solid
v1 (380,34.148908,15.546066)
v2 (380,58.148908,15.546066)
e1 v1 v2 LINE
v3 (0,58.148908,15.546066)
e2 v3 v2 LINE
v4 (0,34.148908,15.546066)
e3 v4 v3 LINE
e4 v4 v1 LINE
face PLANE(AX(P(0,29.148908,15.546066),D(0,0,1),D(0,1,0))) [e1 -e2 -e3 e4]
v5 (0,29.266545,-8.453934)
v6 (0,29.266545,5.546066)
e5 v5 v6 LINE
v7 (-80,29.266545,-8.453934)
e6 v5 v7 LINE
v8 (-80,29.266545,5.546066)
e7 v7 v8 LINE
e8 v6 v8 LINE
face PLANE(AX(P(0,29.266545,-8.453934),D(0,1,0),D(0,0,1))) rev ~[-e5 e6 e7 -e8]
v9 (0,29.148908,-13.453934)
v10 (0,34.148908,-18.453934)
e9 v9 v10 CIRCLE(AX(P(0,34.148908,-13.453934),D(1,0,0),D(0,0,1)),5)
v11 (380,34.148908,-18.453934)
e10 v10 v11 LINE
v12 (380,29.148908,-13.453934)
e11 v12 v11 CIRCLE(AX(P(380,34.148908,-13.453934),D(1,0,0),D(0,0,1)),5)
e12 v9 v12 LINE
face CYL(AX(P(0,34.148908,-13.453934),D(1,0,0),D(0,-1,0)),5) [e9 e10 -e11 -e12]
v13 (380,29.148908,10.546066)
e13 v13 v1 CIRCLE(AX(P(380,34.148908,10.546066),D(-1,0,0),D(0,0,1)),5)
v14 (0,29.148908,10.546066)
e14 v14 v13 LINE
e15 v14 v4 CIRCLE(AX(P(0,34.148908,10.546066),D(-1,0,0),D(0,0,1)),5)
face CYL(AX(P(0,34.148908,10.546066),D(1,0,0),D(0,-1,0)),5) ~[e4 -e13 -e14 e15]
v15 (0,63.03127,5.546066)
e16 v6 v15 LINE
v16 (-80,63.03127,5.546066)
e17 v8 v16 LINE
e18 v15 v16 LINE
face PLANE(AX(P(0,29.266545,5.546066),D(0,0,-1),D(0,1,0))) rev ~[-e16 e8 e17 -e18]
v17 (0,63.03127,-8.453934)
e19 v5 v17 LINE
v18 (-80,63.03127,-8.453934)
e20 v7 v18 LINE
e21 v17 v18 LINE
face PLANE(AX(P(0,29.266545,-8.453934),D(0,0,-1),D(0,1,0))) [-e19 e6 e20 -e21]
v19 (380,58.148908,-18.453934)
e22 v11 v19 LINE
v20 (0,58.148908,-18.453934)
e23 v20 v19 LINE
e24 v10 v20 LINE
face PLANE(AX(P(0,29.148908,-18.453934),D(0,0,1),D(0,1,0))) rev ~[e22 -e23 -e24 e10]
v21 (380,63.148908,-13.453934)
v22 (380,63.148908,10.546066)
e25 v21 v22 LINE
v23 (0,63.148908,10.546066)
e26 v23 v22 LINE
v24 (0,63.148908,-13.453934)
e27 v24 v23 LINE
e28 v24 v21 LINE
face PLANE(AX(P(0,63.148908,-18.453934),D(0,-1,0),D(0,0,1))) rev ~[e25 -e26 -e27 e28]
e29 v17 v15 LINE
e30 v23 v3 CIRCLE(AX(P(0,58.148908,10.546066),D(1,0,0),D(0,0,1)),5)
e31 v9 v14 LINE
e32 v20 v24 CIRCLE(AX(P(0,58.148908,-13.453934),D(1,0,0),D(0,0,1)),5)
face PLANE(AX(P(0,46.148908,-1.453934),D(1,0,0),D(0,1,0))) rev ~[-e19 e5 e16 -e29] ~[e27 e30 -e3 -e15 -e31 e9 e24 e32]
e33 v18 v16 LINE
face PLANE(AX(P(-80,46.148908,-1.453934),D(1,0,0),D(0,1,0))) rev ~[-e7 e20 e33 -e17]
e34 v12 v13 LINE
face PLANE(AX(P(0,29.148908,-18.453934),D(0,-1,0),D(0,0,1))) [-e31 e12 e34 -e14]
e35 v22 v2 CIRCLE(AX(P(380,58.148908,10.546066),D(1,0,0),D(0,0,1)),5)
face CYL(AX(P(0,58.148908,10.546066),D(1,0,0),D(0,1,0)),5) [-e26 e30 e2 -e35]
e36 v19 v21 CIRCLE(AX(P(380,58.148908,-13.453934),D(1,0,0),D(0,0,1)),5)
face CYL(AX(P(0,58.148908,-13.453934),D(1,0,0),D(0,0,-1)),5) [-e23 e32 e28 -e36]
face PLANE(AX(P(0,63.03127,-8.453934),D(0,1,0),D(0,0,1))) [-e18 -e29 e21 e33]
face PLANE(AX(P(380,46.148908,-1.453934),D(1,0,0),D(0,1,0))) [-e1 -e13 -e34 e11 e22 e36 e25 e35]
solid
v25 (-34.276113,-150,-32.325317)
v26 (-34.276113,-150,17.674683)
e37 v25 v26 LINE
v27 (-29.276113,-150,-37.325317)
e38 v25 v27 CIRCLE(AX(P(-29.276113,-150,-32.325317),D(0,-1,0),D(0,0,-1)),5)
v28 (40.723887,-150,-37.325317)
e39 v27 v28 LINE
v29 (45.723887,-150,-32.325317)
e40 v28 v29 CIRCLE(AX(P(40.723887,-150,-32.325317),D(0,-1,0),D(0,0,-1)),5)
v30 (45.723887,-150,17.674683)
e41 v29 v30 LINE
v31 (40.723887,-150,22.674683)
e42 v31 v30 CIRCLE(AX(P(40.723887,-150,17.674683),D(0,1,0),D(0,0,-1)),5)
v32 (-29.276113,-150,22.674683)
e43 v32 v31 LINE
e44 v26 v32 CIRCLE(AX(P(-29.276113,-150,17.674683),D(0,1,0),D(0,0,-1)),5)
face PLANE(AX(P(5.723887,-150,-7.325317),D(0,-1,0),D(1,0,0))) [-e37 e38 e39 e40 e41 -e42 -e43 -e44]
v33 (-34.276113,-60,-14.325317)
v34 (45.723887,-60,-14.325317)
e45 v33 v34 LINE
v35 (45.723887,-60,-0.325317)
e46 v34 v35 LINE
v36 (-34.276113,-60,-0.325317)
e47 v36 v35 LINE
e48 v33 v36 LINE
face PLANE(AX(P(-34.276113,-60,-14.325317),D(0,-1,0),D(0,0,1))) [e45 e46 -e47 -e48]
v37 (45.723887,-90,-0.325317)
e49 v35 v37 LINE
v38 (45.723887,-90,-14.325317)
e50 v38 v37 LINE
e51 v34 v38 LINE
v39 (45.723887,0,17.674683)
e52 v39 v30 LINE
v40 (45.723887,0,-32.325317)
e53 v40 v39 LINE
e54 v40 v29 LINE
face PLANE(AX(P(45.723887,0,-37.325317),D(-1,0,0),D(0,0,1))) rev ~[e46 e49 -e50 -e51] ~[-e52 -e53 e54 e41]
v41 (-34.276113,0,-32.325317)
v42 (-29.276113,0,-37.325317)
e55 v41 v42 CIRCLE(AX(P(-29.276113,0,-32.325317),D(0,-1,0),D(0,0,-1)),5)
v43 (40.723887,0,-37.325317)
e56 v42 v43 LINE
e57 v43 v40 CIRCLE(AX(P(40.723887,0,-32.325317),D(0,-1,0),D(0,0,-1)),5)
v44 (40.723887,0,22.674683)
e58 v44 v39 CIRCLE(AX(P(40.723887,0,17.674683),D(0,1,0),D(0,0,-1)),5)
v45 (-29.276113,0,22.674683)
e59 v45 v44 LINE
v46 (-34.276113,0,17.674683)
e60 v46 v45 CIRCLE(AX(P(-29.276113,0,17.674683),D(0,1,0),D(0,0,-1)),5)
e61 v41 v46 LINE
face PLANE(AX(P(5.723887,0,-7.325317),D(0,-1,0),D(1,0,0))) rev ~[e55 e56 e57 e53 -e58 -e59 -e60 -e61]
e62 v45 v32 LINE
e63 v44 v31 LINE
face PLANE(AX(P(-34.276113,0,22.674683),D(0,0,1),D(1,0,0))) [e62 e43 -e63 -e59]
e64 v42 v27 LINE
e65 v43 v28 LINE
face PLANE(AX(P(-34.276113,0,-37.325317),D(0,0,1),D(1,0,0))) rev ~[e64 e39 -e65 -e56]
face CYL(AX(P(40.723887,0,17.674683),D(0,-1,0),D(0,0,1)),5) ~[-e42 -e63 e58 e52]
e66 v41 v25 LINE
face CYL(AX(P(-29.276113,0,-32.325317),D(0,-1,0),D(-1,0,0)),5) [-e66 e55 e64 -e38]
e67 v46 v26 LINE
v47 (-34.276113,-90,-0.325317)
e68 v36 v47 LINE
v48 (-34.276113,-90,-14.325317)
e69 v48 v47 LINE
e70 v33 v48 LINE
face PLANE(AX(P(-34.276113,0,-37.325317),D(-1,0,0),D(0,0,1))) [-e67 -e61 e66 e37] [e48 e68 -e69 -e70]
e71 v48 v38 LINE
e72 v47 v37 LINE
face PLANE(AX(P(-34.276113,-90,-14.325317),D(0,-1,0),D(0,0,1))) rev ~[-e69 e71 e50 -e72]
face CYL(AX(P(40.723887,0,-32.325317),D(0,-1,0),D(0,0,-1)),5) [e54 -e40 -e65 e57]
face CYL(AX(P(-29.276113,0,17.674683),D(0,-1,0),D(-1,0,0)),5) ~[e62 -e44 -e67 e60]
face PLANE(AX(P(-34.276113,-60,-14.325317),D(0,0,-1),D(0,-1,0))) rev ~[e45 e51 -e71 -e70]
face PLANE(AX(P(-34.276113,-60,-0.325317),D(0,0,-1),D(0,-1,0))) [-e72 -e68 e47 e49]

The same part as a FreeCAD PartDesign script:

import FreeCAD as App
import Part
import Sketcher

V = App.Vector


def edges_at(feature, points):
    """Names of the edges that pass closest to the given points."""
    edges = feature.Shape.Edges
    near = lambda p: min(range(len(edges)), key=lambda i: edges[i].distToShape(Part.Vertex(*p))[0])
    return sorted({f"Edge{near(p) + 1}" for p in points})

doc = App.newDocument("Part")
body = doc.addObject("PartDesign::Body", "Body")

# Sketch on XZ plane
sketch1 = body.newObject("Sketcher::SketchObject", "Sketch")
sketch1.AttachmentSupport = (doc.getObject("XZ_Plane"), [""])
sketch1.MapMode = "FlatFace"
sketch1.addGeometry([
    Part.LineSegment(V(-34, 23, 0), V(-34, -37, 0)),
    Part.LineSegment(V(-34, -37, 0), V(46, -37, 0)),
    Part.LineSegment(V(46, -37, 0), V(46, 23, 0)),
    Part.LineSegment(V(46, 23, 0), V(-34, 23, 0)),
], False)
sketch1.addConstraint([
    Sketcher.Constraint("Coincident", 0, 2, 1, 1),
    Sketcher.Constraint("Coincident", 1, 2, 2, 1),
    Sketcher.Constraint("Coincident", 2, 2, 3, 1),
    Sketcher.Constraint("Coincident", 3, 2, 0, 1),
    Sketcher.Constraint("Vertical", 0),
    Sketcher.Constraint("Horizontal", 1),
    Sketcher.Constraint("Vertical", 2),
    Sketcher.Constraint("Horizontal", 3),
    Sketcher.Constraint("DistanceX", 1, 1, 1, 2, 80.0),
    Sketcher.Constraint("DistanceY", 0, 2, 0, 1, 60.0),
    Sketcher.Constraint("DistanceX", 0, 2, -1, 1, 34.276113),
    Sketcher.Constraint("DistanceY", 0, 2, -1, 1, 37.325317),
])
pad1 = body.newObject("PartDesign::Pad", "Pad")
pad1.Profile = sketch1
pad1.Length = 150

# Sketch on YZ plane
sketch2 = body.newObject("Sketcher::SketchObject", "Sketch001")
sketch2.AttachmentSupport = (doc.getObject("YZ_Plane"), [""])
sketch2.MapMode = "FlatFace"
sketch2.AttachmentOffset = App.Placement(V(0, 0, -34.276113), App.Rotation())
sketch2.addGeometry([
    Part.LineSegment(V(-60, 0, 0), V(-60, -14, 0)),
    Part.LineSegment(V(-60, -14, 0), V(-90, -14, 0)),
    Part.LineSegment(V(-90, -14, 0), V(-90, 0, 0)),
    Part.LineSegment(V(-90, 0, 0), V(-60, 0, 0)),
], False)
sketch2.addConstraint([
    Sketcher.Constraint("Coincident", 0, 2, 1, 1),
    Sketcher.Constraint("Coincident", 1, 2, 2, 1),
    Sketcher.Constraint("Coincident", 2, 2, 3, 1),
    Sketcher.Constraint("Coincident", 3, 2, 0, 1),
    Sketcher.Constraint("Vertical", 0),
    Sketcher.Constraint("Horizontal", 1),
    Sketcher.Constraint("Vertical", 2),
    Sketcher.Constraint("Horizontal", 3),
    Sketcher.Constraint("DistanceX", 1, 2, 1, 1, 30.0),
    Sketcher.Constraint("DistanceY", 0, 2, 0, 1, 14.0),
    Sketcher.Constraint("DistanceX", 0, 2, -1, 1, 60.0),
    Sketcher.Constraint("DistanceY", 0, 2, -1, 1, 14.325317),
])
pocket1 = body.newObject("PartDesign::Pocket", "Pocket")
pocket1.Profile = sketch2
pocket1.Type = "ThroughAll"
pocket1.Reversed = True
doc.recompute()

fillet = body.newObject("PartDesign::Fillet", "Fillet")
fillet.Base = (pocket1, edges_at(pocket1, [
    (45.724, -75, -37.325),
    (-34.276, -75, -37.325),
    (-34.276, -75, 22.675),
    (45.724, -75, 22.675),
]))
fillet.Radius = 5
body2 = doc.addObject("PartDesign::Body", "Body001")

# Sketch on YZ plane
sketch3 = body2.newObject("Sketcher::SketchObject", "Sketch002")
sketch3.AttachmentSupport = (doc.getObject("YZ_Plane001"), [""])
sketch3.MapMode = "FlatFace"
sketch3.addGeometry([
    Part.LineSegment(V(29, 16, 0), V(29, -18, 0)),
    Part.LineSegment(V(29, -18, 0), V(63, -18, 0)),
    Part.LineSegment(V(63, -18, 0), V(63, 16, 0)),
    Part.LineSegment(V(63, 16, 0), V(29, 16, 0)),
], False)
sketch3.addConstraint([
    Sketcher.Constraint("Coincident", 0, 2, 1, 1),
    Sketcher.Constraint("Coincident", 1, 2, 2, 1),
    Sketcher.Constraint("Coincident", 2, 2, 3, 1),
    Sketcher.Constraint("Coincident", 3, 2, 0, 1),
    Sketcher.Constraint("Vertical", 0),
    Sketcher.Constraint("Horizontal", 1),
    Sketcher.Constraint("Vertical", 2),
    Sketcher.Constraint("Horizontal", 3),
    Sketcher.Constraint("Equal", 3, 0),
    Sketcher.Constraint("DistanceX", 1, 1, 1, 2, 34.0),
    Sketcher.Constraint("DistanceX", -1, 1, 0, 2, 29.148908),
    Sketcher.Constraint("DistanceY", 0, 2, -1, 1, 18.453934),
])
pad2 = body2.newObject("PartDesign::Pad", "Pad001")
pad2.Profile = sketch3
pad2.Length = 380
doc.recompute()

fillet2 = body2.newObject("PartDesign::Fillet", "Fillet001")
fillet2.Base = (pad2, edges_at(pad2, [
    (190, 63.149, 15.546),
    (190, 29.149, 15.546),
    (190, 29.149, -18.454),
    (190, 63.149, -18.454),
]))
fillet2.Radius = 5

# Sketch on YZ plane
sketch4 = body2.newObject("Sketcher::SketchObject", "Sketch003")
sketch4.AttachmentSupport = (doc.getObject("YZ_Plane001"), [""])
sketch4.MapMode = "FlatFace"
sketch4.addGeometry([
    Part.LineSegment(V(29, 6, 0), V(29, -8, 0)),
    Part.LineSegment(V(29, -8, 0), V(63, -8, 0)),
    Part.LineSegment(V(63, -8, 0), V(63, 6, 0)),
    Part.LineSegment(V(63, 6, 0), V(29, 6, 0)),
], False)
sketch4.addConstraint([
    Sketcher.Constraint("Coincident", 0, 2, 1, 1),
    Sketcher.Constraint("Coincident", 1, 2, 2, 1),
    Sketcher.Constraint("Coincident", 2, 2, 3, 1),
    Sketcher.Constraint("Coincident", 3, 2, 0, 1),
    Sketcher.Constraint("Vertical", 0),
    Sketcher.Constraint("Horizontal", 1),
    Sketcher.Constraint("Vertical", 2),
    Sketcher.Constraint("Horizontal", 3),
    Sketcher.Constraint("DistanceY", 0, 2, 0, 1, 14.0),
    Sketcher.Constraint("DistanceX", 1, 1, 1, 2, 33.764725),
    Sketcher.Constraint("DistanceX", -1, 1, 1, 2, 63.03127),
    Sketcher.Constraint("DistanceY", 0, 2, -1, 1, 8.453934),
])
pad3 = body2.newObject("PartDesign::Pad", "Pad002")
pad3.Profile = sketch4
pad3.Length = 80
pad3.Reversed = True

doc.recompute()
